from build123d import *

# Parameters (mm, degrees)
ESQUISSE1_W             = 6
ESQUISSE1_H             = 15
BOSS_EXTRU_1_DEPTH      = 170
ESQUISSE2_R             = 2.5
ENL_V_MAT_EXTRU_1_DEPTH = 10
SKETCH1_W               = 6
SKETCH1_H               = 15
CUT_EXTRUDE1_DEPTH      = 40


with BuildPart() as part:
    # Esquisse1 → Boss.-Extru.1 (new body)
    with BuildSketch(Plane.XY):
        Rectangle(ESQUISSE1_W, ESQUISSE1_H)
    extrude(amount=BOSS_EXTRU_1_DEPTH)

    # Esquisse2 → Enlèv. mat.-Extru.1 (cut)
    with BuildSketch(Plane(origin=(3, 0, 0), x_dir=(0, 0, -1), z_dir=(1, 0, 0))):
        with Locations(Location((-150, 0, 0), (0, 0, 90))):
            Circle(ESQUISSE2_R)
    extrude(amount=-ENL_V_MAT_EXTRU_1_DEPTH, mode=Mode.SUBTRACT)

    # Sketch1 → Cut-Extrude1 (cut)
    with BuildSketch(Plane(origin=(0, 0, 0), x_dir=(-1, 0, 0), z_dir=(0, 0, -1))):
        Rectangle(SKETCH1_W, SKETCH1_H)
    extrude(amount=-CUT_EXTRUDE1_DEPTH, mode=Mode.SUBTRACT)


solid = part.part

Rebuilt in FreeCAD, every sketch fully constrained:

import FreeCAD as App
import Part
import Sketcher
from FreeCAD import Vector
Q = App.Units.Quantity

doc = App.newDocument("Part")
body = doc.addObject("PartDesign::Body", "Body")

sketch1 = doc.addObject("Sketcher::SketchObject", "Sketch")
body.addObject(sketch1)
sketch1.AttachmentSupport = (doc.XY_Plane, [""])
sketch1.MapMode = "FlatFace"
sketch1.addGeometry(Part.LineSegment(Vector(-3, 8, 0), Vector(-3, -8, 0)), False)
sketch1.addGeometry(Part.LineSegment(Vector(-3, -8, 0), Vector(3, -8, 0)), False)
sketch1.addGeometry(Part.LineSegment(Vector(3, -8, 0), Vector(3, 8, 0)), False)
sketch1.addGeometry(Part.LineSegment(Vector(3, 8, 0), Vector(-3, 8, 0)), False)
sketch1.addConstraint(Sketcher.Constraint("Coincident", 0, 2, 1, 1))
sketch1.addConstraint(Sketcher.Constraint("Coincident", 1, 2, 2, 1))
sketch1.addConstraint(Sketcher.Constraint("Coincident", 2, 2, 3, 1))
sketch1.addConstraint(Sketcher.Constraint("Coincident", 3, 2, 0, 1))
sketch1.addConstraint(Sketcher.Constraint("Vertical", 0))
sketch1.addConstraint(Sketcher.Constraint("Horizontal", 1))
sketch1.addConstraint(Sketcher.Constraint("Vertical", 2))
sketch1.addConstraint(Sketcher.Constraint("Horizontal", 3))
sketch1.addConstraint(Sketcher.Constraint("Symmetric", 0, 2, 2, 2, -1, 1))
sketch1.addConstraint(Sketcher.Constraint("DistanceX", 1, 1, 1, 2, Q("6 mm")))
sketch1.addConstraint(Sketcher.Constraint("DistanceY", 0, 2, 0, 1, Q("15 mm")))
pad1 = doc.addObject("PartDesign::Pad", "Pad")
body.addObject(pad1)
pad1.Profile = sketch1
pad1.Length = 170

sketch2 = doc.addObject("Sketcher::SketchObject", "Sketch001")
body.addObject(sketch2)
sketch2.AttachmentSupport = (doc.YZ_Plane, [""])
sketch2.MapMode = "FlatFace"
sketch2.AttachmentOffset = App.Placement(Vector(0, 0, 3), App.Rotation())
sketch2.addGeometry(Part.Circle(Vector(0, 150, 0), Vector(0, 0, 1), 2.5), False)
sketch2.addConstraint(Sketcher.Constraint("PointOnObject", 0, 3, -2))
sketch2.addConstraint(Sketcher.Constraint("Diameter", 0, Q("5 mm")))
sketch2.addConstraint(Sketcher.Constraint("DistanceY", -1, 1, 0, 3, Q("150 mm")))
pocket1 = doc.addObject("PartDesign::Pocket", "Pocket")
body.addObject(pocket1)
pocket1.Profile = sketch2
pocket1.Length = 10

sketch3 = doc.addObject("Sketcher::SketchObject", "Sketch002")
body.addObject(sketch3)
sketch3.AttachmentSupport = (doc.XY_Plane, [""])
sketch3.MapMode = "FlatFace"
sketch3.addGeometry(Part.LineSegment(Vector(3, 8, 0), Vector(3, -8, 0)), False)
sketch3.addGeometry(Part.LineSegment(Vector(3, -8, 0), Vector(-3, -8, 0)), False)
sketch3.addGeometry(Part.LineSegment(Vector(-3, -8, 0), Vector(-3, 8, 0)), False)
sketch3.addGeometry(Part.LineSegment(Vector(-3, 8, 0), Vector(3, 8, 0)), False)
sketch3.addConstraint(Sketcher.Constraint("Coincident", 0, 2, 1, 1))
sketch3.addConstraint(Sketcher.Constraint("Coincident", 1, 2, 2, 1))
sketch3.addConstraint(Sketcher.Constraint("Coincident", 2, 2, 3, 1))
sketch3.addConstraint(Sketcher.Constraint("Coincident", 3, 2, 0, 1))
sketch3.addConstraint(Sketcher.Constraint("Vertical", 0))
sketch3.addConstraint(Sketcher.Constraint("Horizontal", 1))
sketch3.addConstraint(Sketcher.Constraint("Vertical", 2))
sketch3.addConstraint(Sketcher.Constraint("Horizontal", 3))
sketch3.addConstraint(Sketcher.Constraint("Symmetric", 0, 2, 2, 2, -1, 1))
sketch3.addConstraint(Sketcher.Constraint("DistanceX", 1, 2, 1, 1, Q("6 mm")))
sketch3.addConstraint(Sketcher.Constraint("DistanceY", 0, 2, 0, 1, Q("15 mm")))
pocket2 = doc.addObject("PartDesign::Pocket", "Pocket001")
body.addObject(pocket2)
pocket2.Profile = sketch3
pocket2.Length = 40
pocket2.Reversed = True

doc.recompute()
